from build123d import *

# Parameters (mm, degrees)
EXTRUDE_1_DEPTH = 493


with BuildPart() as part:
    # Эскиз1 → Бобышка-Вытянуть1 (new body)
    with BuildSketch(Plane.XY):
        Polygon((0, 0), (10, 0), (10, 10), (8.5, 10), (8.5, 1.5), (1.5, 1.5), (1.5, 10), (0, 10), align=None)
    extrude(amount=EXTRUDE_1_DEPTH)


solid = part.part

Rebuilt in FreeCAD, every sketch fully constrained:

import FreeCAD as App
import Part
import Sketcher


def add_polygon(sketch, points):
    """Adds a closed chain of lines whose ends are joined by coincident constraints."""
    first, n = sketch.GeometryCount, len(points)
    for a, b in zip(points, points[1:] + points[:1]):
        sketch.addGeometry(Part.LineSegment(App.Vector(*a, 0), App.Vector(*b, 0)), False)
    for i in range(n):
        sketch.addConstraint(Sketcher.Constraint("Coincident", first + i, 2, first + (i + 1) % n, 1))

doc = App.newDocument("Part")
body = doc.addObject("PartDesign::Body", "Body")

# Sketch on XY plane
sketch1 = body.newObject("Sketcher::SketchObject", "Sketch")
sketch1.AttachmentSupport = (doc.getObject("XY_Plane"), [""])
sketch1.MapMode = "FlatFace"
add_polygon(sketch1, [(0, 0), (10, 0), (10, 10), (8.5, 10), (8.5, 1.5), (1.5, 1.5), (1.5, 10), (0, 10)])  # lines 0-7
sketch1.addConstraint([
    Sketcher.Constraint("Horizontal", 0),
    Sketcher.Constraint("Vertical", 1),
    Sketcher.Constraint("Horizontal", 2),
    Sketcher.Constraint("Vertical", 3),
    Sketcher.Constraint("Horizontal", 4),
    Sketcher.Constraint("Vertical", 5),
    Sketcher.Constraint("Horizontal", 6),
    Sketcher.Constraint("Vertical", 7),
    Sketcher.Constraint("Coincident", 7, 2, -1, 1),
    Sketcher.Constraint("Horizontal", 2, 2, 5, 2),
    Sketcher.Constraint("Equal", 2, 6),
    Sketcher.Constraint("Equal", 0, 1),
    Sketcher.Constraint("DistanceX", 0, 1, 0, 2, 10.0),
    Sketcher.Constraint("DistanceX", 4, 2, 4, 1, 7.0),
    Sketcher.Constraint("DistanceY", 3, 2, 3, 1, 8.5),
])
pad1 = body.newObject("PartDesign::Pad", "Pad")
pad1.Profile = sketch1
pad1.Length = 493

doc.recompute()
